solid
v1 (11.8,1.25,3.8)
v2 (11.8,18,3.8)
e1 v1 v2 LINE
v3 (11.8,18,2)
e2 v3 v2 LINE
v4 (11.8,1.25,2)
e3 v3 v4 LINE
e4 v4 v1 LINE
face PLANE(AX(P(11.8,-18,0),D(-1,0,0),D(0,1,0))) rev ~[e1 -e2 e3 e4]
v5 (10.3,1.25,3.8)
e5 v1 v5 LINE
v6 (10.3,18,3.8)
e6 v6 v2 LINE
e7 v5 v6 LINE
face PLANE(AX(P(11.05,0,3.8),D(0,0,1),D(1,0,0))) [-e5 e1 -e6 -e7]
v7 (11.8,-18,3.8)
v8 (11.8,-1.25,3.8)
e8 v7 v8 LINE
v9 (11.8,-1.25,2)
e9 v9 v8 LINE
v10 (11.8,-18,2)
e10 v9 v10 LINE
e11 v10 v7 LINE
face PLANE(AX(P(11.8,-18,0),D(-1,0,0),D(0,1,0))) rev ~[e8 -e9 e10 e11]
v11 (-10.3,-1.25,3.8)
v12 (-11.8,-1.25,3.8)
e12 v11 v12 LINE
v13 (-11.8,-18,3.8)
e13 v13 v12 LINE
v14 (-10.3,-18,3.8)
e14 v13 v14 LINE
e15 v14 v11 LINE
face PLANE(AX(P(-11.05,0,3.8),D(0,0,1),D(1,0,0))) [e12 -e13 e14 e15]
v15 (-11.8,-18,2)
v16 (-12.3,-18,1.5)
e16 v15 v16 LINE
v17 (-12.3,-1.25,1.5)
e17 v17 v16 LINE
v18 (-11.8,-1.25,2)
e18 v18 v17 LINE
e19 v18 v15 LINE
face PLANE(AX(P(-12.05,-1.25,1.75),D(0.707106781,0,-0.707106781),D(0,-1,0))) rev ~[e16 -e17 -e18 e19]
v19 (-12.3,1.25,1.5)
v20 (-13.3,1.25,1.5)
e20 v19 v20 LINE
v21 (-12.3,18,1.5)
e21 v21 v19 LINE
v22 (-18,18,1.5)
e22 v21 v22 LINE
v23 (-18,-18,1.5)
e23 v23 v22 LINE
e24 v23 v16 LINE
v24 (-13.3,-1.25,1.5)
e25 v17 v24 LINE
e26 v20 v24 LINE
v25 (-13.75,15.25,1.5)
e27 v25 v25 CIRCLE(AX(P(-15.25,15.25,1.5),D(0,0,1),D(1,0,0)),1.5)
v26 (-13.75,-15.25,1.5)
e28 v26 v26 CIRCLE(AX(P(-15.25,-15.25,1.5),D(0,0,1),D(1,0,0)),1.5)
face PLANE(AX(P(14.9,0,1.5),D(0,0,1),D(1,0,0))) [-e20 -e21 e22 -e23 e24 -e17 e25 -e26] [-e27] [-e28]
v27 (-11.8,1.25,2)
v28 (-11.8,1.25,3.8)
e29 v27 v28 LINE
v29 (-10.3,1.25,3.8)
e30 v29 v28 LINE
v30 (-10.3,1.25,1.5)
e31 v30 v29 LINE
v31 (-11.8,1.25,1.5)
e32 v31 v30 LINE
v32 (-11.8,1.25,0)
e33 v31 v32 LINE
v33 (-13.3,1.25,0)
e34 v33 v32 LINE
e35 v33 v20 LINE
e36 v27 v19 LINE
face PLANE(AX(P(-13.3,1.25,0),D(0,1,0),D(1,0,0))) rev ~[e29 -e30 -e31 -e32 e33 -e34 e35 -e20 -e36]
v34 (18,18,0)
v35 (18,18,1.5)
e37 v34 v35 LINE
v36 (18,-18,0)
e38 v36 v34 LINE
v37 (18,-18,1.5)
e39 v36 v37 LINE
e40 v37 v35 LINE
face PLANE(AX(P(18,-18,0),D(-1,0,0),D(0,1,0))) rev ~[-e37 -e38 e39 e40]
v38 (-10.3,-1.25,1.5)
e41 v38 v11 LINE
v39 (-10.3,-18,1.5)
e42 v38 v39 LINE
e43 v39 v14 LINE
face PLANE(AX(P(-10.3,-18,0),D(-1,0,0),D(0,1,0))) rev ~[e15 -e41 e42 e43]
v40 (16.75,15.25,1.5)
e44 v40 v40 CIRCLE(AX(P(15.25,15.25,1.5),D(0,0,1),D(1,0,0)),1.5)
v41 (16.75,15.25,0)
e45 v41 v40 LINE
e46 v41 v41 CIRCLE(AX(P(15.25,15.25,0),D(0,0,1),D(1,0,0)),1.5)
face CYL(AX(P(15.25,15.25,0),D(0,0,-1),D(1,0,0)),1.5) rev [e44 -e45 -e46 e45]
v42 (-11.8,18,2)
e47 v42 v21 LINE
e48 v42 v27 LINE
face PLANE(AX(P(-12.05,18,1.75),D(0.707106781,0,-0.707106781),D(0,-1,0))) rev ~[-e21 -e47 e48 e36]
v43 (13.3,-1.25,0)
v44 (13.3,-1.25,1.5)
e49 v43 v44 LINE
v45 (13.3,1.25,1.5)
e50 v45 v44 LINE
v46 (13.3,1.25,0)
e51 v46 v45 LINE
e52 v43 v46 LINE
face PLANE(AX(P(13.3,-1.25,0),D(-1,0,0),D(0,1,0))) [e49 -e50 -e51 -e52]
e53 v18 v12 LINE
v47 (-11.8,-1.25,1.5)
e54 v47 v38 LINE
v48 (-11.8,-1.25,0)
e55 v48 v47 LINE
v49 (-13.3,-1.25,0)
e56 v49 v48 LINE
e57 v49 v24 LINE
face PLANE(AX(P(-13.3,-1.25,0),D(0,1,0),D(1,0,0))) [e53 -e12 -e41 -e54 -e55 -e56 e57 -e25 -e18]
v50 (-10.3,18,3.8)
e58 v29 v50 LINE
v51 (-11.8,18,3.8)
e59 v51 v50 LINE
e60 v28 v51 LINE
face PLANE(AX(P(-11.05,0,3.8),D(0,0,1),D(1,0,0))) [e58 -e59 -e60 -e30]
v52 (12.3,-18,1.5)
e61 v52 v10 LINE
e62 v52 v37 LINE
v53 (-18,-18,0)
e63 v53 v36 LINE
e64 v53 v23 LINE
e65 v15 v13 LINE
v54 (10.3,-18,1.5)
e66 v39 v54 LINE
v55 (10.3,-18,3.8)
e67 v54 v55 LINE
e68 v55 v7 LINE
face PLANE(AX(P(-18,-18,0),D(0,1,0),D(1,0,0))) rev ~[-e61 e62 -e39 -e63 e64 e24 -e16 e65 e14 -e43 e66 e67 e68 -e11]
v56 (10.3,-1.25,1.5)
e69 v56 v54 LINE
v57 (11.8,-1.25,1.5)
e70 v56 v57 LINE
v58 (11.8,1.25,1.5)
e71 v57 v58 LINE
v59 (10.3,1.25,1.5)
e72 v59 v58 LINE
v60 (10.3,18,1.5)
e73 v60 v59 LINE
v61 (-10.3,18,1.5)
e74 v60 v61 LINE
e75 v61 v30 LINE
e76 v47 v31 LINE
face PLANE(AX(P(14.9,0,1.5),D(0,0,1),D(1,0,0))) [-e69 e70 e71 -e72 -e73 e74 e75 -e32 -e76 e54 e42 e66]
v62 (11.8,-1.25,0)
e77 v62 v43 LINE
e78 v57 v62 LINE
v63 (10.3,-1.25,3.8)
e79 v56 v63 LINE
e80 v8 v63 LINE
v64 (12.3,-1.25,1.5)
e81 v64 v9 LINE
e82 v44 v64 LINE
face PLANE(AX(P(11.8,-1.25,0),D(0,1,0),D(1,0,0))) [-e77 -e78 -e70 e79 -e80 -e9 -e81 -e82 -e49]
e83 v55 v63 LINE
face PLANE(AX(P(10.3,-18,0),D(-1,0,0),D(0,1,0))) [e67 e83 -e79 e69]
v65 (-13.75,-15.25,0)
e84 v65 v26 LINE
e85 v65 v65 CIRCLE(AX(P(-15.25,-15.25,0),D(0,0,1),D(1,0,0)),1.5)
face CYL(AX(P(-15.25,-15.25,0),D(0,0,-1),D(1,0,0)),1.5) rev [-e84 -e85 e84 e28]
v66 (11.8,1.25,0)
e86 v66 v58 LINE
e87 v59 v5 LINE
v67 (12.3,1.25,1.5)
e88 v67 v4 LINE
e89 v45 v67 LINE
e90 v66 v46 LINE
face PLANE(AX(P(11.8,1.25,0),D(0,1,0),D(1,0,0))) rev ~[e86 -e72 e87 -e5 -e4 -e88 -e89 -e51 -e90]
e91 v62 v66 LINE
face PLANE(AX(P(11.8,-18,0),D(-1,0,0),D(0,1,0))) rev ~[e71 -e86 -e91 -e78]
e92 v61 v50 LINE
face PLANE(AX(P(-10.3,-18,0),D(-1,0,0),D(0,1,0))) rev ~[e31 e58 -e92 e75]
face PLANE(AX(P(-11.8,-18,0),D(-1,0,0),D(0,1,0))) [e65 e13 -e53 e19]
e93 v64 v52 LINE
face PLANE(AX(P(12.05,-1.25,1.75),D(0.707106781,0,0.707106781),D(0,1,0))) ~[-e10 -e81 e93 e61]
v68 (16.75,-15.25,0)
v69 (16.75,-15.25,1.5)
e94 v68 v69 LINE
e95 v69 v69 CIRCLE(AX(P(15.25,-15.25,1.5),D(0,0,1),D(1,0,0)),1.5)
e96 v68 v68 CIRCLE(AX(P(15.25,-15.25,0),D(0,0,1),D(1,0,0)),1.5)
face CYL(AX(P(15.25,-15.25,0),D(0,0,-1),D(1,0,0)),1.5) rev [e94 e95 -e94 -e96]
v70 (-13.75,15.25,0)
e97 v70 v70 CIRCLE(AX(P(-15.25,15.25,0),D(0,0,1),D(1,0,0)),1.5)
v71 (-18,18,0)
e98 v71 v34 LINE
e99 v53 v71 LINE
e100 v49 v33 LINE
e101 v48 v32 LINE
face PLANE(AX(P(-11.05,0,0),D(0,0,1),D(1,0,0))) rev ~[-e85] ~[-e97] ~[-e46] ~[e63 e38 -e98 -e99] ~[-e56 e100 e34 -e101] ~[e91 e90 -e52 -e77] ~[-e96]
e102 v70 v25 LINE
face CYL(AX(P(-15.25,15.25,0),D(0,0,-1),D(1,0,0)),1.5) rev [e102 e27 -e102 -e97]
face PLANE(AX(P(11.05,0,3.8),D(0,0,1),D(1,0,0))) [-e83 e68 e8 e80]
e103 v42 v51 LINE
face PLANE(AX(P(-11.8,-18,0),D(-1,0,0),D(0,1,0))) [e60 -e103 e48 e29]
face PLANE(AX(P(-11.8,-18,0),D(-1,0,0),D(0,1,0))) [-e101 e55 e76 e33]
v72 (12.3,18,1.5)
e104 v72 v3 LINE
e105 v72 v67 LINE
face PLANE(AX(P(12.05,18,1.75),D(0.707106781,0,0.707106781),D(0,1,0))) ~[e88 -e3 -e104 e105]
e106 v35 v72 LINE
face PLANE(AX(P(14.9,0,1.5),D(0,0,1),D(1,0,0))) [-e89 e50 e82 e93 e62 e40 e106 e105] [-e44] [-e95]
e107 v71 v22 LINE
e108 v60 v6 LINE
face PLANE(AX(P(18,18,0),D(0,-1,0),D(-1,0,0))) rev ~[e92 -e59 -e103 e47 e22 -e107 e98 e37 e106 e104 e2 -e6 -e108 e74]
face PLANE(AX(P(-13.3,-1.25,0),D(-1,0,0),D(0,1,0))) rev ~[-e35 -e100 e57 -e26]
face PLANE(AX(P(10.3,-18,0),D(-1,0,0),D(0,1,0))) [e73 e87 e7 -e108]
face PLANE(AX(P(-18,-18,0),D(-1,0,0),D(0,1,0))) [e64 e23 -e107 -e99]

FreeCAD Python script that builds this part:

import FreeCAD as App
import Part
import Sketcher


def edges_at(feature, points):
    """Names of the edges that pass closest to the given points."""
    edges = feature.Shape.Edges
    near = lambda p: min(range(len(edges)), key=lambda i: edges[i].distToShape(Part.Vertex(*p))[0])
    return sorted({f"Edge{near(p) + 1}" for p in points})


def add_polygon(sketch, points):
    """Adds a closed chain of lines whose ends are joined by coincident constraints."""
    first, n = sketch.GeometryCount, len(points)
    for a, b in zip(points, points[1:] + points[:1]):
        sketch.addGeometry(Part.LineSegment(App.Vector(*a, 0), App.Vector(*b, 0)), False)
    for i in range(n):
        sketch.addConstraint(Sketcher.Constraint("Coincident", first + i, 2, first + (i + 1) % n, 1))

doc = App.newDocument("Part")
body = doc.addObject("PartDesign::Body", "Body")

# Sketch on XY plane
sketch1 = body.newObject("Sketcher::SketchObject", "Sketch")
sketch1.AttachmentSupport = (doc.getObject("XY_Plane"), [""])
sketch1.MapMode = "FlatFace"
add_polygon(sketch1, [(18, -18), (18, 18), (-18, 18), (-18, -18)])  # lines 0-3
sketch1.addGeometry(Part.Circle(App.Vector(-15.25, -15.25, 0), App.Vector(0, 0, 1), 1.5), False)  # 4
sketch1.addGeometry(Part.Circle(App.Vector(15.25, -15.25, 0), App.Vector(0, 0, 1), 1.5), False)  # 5
sketch1.addGeometry(Part.Circle(App.Vector(-15.25, 15.25, 0), App.Vector(0, 0, 1), 1.5), False)  # 6
sketch1.addGeometry(Part.Circle(App.Vector(15.25, 15.25, 0), App.Vector(0, 0, 1), 1.5), False)  # 7
sketch1.addConstraint([
    Sketcher.Constraint("Vertical", 0),
    Sketcher.Constraint("Horizontal", 1),
    Sketcher.Constraint("Vertical", 2),
    Sketcher.Constraint("Horizontal", 3),
    Sketcher.Constraint("Equal", 4, 5),
    Sketcher.Constraint("Equal", 5, 6),
    Sketcher.Constraint("Equal", 6, 7),
    Sketcher.Constraint("Symmetric", 5, 3, 6, 3, -1, 1),
    Sketcher.Constraint("Symmetric", 4, 3, 7, 3, -1, 1),
    Sketcher.Constraint("Symmetric", 0, 2, 2, 2, -1, 1),
    Sketcher.Constraint("Symmetric", 4, 3, 5, 3, -2),
    Sketcher.Constraint("Equal", 3, 0),
    Sketcher.Constraint("Diameter", 4, 3.0),
    Sketcher.Constraint("DistanceX", 1, 2, 1, 1, 36.0),
    Sketcher.Constraint("DistanceX", 4, 3, 5, 3, 30.5),
    Sketcher.Constraint("DistanceY", 4, 3, 6, 3, 30.5),
])
pad1 = body.newObject("PartDesign::Pad", "Pad")
pad1.Profile = sketch1
pad1.Length = 1.5

# Sketch on XY plane
sketch2 = body.newObject("Sketcher::SketchObject", "Sketch001")
sketch2.AttachmentSupport = (doc.getObject("XY_Plane"), [""])
sketch2.MapMode = "FlatFace"
add_polygon(sketch2, [(-11.8, 18), (-11.8, -18), (-10.3, -18), (-10.3, 18)])  # lines 0-3
add_polygon(sketch2, [(10.3, 18), (10.3, -18), (11.8, -18), (11.8, 18)])  # lines 4-7
sketch2.addConstraint([
    Sketcher.Constraint("Vertical", 0),
    Sketcher.Constraint("Horizontal", 1),
    Sketcher.Constraint("Vertical", 2),
    Sketcher.Constraint("Horizontal", 3),
    Sketcher.Constraint("Vertical", 4),
    Sketcher.Constraint("Horizontal", 5),
    Sketcher.Constraint("Vertical", 6),
    Sketcher.Constraint("Horizontal", 7),
    Sketcher.Constraint("Symmetric", 2, 2, 4, 2, -1, 1),
    Sketcher.Constraint("Symmetric", 0, 2, 6, 2, -1, 1),
    Sketcher.Constraint("Horizontal", 1, 2, 4, 2),
    Sketcher.Constraint("DistanceY", 0, 2, 0, 1, 36.0),
    Sketcher.Constraint("DistanceX", 1, 1, 1, 2, 1.5),
    Sketcher.Constraint("DistanceX", 0, 2, -1, 1, 11.8),
])
pad2 = body.newObject("PartDesign::Pad", "Pad001")
pad2.Profile = sketch2
pad2.Length = 3.8

# Sketch on XY plane
sketch3 = body.newObject("Sketcher::SketchObject", "Sketch002")
sketch3.AttachmentSupport = (doc.getObject("XY_Plane"), [""])
sketch3.MapMode = "FlatFace"
add_polygon(sketch3, [(-13.3, 1.25), (-13.3, -1.25), (-11.8, -1.25), (-11.8, 1.25)])  # lines 0-3
add_polygon(sketch3, [(11.8, 1.25), (11.8, -1.25), (13.3, -1.25), (13.3, 1.25)])  # lines 4-7
sketch3.addConstraint([
    Sketcher.Constraint("Vertical", 0),
    Sketcher.Constraint("Horizontal", 1),
    Sketcher.Constraint("Vertical", 2),
    Sketcher.Constraint("Horizontal", 3),
    Sketcher.Constraint("Vertical", 4),
    Sketcher.Constraint("Horizontal", 5),
    Sketcher.Constraint("Vertical", 6),
    Sketcher.Constraint("Horizontal", 7),
    Sketcher.Constraint("Symmetric", 2, 2, 4, 2, -1, 1),
    Sketcher.Constraint("Symmetric", 0, 2, 6, 2, -1, 1),
    Sketcher.Constraint("Horizontal", 1, 2, 4, 2),
    Sketcher.Constraint("DistanceX", 1, 1, 1, 2, 1.5),
    Sketcher.Constraint("DistanceY", 0, 2, 0, 1, 2.5),
    Sketcher.Constraint("DistanceX", 0, 2, -1, 1, 13.3),
])
pocket1 = body.newObject("PartDesign::Pocket", "Pocket")
pocket1.Profile = sketch3
pocket1.Length = 25
pocket1.Reversed = True
doc.recompute()

chamfer = body.newObject("PartDesign::Chamfer", "Chamfer")
chamfer.Base = (pocket1, edges_at(pocket1, [
    (-11.8, 9.625, 1.5),
    (-11.8, -9.625, 1.5),
    (11.8, -9.625, 1.5),
    (11.8, 9.625, 1.5),
]))
chamfer.Size = 0.5

# Sketch on XY plane
sketch4 = body.newObject("Sketcher::SketchObject", "Sketch003")
sketch4.AttachmentSupport = (doc.getObject("XY_Plane"), [""])
sketch4.MapMode = "FlatFace"
sketch4.AttachmentOffset = App.Placement(App.Vector(0, 0, 1.5), App.Rotation())
add_polygon(sketch4, [(-11.8, 1.25), (-11.8, -1.25), (-10.3, -1.25), (-10.3, 1.25)])  # lines 0-3
add_polygon(sketch4, [(10.3, 1.25), (10.3, -1.25), (11.8, -1.25), (11.8, 1.25)])  # lines 4-7
sketch4.addConstraint([
    Sketcher.Constraint("Vertical", 0),
    Sketcher.Constraint("Horizontal", 1),
    Sketcher.Constraint("Vertical", 2),
    Sketcher.Constraint("Horizontal", 3),
    Sketcher.Constraint("Vertical", 4),
    Sketcher.Constraint("Horizontal", 5),
    Sketcher.Constraint("Vertical", 6),
    Sketcher.Constraint("Horizontal", 7),
    Sketcher.Constraint("Symmetric", 2, 2, 4, 2, -1, 1),
    Sketcher.Constraint("Symmetric", 0, 2, 6, 2, -1, 1),
    Sketcher.Constraint("Horizontal", 1, 2, 4, 2),
    Sketcher.Constraint("DistanceX", 1, 1, 1, 2, 1.5),
    Sketcher.Constraint("DistanceY", 0, 2, 0, 1, 2.5),
    Sketcher.Constraint("DistanceX", 0, 2, -1, 1, 11.8),
])
pocket2 = body.newObject("PartDesign::Pocket", "Pocket001")
pocket2.Profile = sketch4
pocket2.Length = 25
pocket2.Reversed = True

doc.recompute()
